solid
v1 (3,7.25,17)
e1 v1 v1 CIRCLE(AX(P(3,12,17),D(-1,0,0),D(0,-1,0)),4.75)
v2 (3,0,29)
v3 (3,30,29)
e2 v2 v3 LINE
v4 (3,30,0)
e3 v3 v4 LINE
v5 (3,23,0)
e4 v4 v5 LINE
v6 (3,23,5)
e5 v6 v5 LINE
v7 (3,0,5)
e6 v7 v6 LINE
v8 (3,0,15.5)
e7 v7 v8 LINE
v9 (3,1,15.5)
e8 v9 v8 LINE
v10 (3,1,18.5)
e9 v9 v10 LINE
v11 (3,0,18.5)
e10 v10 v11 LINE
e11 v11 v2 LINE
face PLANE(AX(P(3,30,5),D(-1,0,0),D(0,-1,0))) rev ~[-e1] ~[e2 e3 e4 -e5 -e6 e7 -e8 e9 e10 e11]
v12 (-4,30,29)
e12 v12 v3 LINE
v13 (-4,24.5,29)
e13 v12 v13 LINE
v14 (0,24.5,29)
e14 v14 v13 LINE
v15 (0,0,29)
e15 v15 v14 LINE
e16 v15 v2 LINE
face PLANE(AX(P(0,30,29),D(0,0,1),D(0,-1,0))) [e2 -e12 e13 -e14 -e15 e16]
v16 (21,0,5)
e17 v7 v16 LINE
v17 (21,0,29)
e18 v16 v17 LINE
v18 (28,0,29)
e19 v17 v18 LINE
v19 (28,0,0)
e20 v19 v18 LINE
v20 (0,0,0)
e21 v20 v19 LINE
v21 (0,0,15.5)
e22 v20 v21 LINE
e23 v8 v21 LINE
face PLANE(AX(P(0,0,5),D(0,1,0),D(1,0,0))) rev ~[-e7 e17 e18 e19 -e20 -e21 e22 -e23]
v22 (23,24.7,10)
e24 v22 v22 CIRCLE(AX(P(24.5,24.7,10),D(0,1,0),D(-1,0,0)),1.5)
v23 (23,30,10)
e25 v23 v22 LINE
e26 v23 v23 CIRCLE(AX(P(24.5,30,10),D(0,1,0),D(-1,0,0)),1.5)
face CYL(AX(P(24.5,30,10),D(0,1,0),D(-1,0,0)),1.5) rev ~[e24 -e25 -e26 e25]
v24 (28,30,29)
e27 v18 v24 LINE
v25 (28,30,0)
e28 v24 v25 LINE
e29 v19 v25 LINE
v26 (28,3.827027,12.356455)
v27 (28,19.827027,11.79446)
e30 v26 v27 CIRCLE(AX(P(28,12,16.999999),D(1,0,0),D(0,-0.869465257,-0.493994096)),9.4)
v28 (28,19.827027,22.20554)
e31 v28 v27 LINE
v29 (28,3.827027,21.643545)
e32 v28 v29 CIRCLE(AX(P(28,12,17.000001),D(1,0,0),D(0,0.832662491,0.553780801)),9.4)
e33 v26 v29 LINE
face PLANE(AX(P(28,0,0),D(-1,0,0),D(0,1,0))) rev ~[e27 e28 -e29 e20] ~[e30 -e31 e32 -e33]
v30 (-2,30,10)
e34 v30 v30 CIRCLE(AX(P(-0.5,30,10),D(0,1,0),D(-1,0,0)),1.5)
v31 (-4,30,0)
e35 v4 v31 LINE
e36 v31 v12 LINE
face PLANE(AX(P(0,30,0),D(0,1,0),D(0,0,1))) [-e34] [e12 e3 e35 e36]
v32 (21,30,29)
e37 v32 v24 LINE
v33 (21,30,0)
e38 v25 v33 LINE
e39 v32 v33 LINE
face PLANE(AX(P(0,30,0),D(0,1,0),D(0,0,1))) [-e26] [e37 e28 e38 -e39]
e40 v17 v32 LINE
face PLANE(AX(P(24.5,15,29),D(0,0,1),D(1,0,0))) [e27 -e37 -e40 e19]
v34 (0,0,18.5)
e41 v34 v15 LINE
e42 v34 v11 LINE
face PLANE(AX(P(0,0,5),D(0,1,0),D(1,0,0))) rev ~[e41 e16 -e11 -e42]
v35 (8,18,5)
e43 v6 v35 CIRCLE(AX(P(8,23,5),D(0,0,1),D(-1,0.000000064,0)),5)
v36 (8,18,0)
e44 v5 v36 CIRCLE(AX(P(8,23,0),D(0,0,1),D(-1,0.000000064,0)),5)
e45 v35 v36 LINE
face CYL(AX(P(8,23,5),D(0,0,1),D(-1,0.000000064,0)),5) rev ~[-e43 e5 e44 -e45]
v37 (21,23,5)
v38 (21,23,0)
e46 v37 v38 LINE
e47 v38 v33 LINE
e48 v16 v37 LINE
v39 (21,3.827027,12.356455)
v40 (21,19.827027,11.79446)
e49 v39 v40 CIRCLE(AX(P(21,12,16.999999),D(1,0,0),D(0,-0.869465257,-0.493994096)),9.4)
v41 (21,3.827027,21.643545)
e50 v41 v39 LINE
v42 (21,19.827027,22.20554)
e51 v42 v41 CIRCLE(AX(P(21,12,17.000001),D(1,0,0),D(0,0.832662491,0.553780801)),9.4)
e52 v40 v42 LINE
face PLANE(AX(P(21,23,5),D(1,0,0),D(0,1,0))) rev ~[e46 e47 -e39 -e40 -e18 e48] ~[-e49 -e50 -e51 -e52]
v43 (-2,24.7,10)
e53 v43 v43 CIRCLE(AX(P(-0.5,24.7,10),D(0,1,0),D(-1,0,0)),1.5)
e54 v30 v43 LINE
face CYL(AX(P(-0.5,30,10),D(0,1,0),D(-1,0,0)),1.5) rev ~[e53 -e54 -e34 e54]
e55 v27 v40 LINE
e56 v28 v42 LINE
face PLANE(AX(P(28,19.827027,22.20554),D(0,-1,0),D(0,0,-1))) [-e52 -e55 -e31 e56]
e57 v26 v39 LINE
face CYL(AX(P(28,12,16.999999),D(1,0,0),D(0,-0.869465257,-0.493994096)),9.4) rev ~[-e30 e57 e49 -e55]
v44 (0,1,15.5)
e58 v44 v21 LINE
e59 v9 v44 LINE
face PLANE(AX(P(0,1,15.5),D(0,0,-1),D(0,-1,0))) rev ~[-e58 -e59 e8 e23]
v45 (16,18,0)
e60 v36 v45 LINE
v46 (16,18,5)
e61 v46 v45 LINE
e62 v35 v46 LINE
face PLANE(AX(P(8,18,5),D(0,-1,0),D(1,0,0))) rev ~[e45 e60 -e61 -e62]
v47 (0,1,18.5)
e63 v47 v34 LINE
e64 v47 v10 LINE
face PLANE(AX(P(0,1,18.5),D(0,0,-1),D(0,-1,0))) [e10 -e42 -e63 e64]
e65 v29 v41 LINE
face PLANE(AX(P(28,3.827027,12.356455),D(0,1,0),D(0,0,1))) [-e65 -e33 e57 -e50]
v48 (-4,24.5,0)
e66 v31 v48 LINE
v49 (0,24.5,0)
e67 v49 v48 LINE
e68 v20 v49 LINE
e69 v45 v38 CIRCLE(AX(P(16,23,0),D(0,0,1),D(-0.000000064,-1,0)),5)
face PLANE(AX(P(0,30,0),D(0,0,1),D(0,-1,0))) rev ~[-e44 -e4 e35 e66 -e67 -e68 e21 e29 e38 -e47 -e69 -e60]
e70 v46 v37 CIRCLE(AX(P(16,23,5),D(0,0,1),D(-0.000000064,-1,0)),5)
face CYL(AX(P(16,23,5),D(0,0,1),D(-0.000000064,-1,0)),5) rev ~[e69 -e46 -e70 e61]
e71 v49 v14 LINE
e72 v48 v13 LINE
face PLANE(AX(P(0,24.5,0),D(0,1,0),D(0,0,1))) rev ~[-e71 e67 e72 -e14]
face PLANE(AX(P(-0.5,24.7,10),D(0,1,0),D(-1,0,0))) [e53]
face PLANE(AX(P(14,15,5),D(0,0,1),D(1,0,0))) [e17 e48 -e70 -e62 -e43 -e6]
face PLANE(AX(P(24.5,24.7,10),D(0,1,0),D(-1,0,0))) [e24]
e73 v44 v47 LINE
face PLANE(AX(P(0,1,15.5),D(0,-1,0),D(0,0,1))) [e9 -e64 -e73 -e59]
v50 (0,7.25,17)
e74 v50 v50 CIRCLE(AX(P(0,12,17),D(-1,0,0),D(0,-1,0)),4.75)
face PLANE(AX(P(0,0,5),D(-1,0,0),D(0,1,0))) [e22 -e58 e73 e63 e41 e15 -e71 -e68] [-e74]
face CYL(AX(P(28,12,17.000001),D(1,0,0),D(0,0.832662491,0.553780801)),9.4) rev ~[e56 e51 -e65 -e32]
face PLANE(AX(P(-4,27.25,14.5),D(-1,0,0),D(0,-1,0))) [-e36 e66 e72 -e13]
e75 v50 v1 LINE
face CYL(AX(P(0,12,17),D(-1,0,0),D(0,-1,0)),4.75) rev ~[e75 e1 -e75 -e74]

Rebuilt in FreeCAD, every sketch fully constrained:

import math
import FreeCAD as App
import Part
import Sketcher

doc = App.newDocument("Part")
body = doc.addObject("PartDesign::Body", "Body")

# Sketch on XY plane
sketch1 = body.newObject("Sketcher::SketchObject", "Sketch")
sketch1.AttachmentSupport = (doc.getObject("XY_Plane"), [""])
sketch1.MapMode = "FlatFace"
sketch1.addGeometry(Part.LineSegment(App.Vector(0, 30, 0), App.Vector(0, 0, 0)), False)
sketch1.addGeometry(Part.LineSegment(App.Vector(0, 0, 0), App.Vector(28, 0, 0)), False)
sketch1.addGeometry(Part.LineSegment(App.Vector(28, 0, 0), App.Vector(28, 30, 0)), False)
sketch1.addGeometry(Part.LineSegment(App.Vector(28, 30, 0), App.Vector(0, 30, 0)), False)
sketch1.addConstraint(Sketcher.Constraint("Coincident", 0, 2, 1, 1))
sketch1.addConstraint(Sketcher.Constraint("Coincident", 1, 2, 2, 1))
sketch1.addConstraint(Sketcher.Constraint("Coincident", 2, 2, 3, 1))
sketch1.addConstraint(Sketcher.Constraint("Coincident", 3, 2, 0, 1))
sketch1.addConstraint(Sketcher.Constraint("Vertical", 0))
sketch1.addConstraint(Sketcher.Constraint("Horizontal", 1))
sketch1.addConstraint(Sketcher.Constraint("Vertical", 2))
sketch1.addConstraint(Sketcher.Constraint("Horizontal", 3))
sketch1.addConstraint(Sketcher.Constraint("Coincident", 0, 2, -1, 1))
sketch1.addConstraint(Sketcher.Constraint("DistanceX", 1, 1, 1, 2, 28.0))
sketch1.addConstraint(Sketcher.Constraint("DistanceY", 0, 2, 0, 1, 30.0))
pad1 = body.newObject("PartDesign::Pad", "Pad")
pad1.Profile = sketch1
pad1.Length = 5

# Sketch on XY plane
sketch2 = body.newObject("Sketcher::SketchObject", "Sketch001")
sketch2.AttachmentSupport = (doc.getObject("XY_Plane"), [""])
sketch2.MapMode = "FlatFace"
sketch2.AttachmentOffset = App.Placement(App.Vector(0, 0, 5), App.Rotation())
sketch2.addGeometry(Part.LineSegment(App.Vector(0, 30, 0), App.Vector(0, 0, 0)), False)
sketch2.addGeometry(Part.LineSegment(App.Vector(0, 0, 0), App.Vector(3, 0, 0)), False)
sketch2.addGeometry(Part.LineSegment(App.Vector(3, 0, 0), App.Vector(3, 30, 0)), False)
sketch2.addGeometry(Part.LineSegment(App.Vector(3, 30, 0), App.Vector(0, 30, 0)), False)
sketch2.addGeometry(Part.LineSegment(App.Vector(21, 30, 0), App.Vector(21, 0, 0)), False)
sketch2.addGeometry(Part.LineSegment(App.Vector(21, 0, 0), App.Vector(28, 0, 0)), False)
sketch2.addGeometry(Part.LineSegment(App.Vector(28, 0, 0), App.Vector(28, 30, 0)), False)
sketch2.addGeometry(Part.LineSegment(App.Vector(28, 30, 0), App.Vector(21, 30, 0)), False)
sketch2.addConstraint(Sketcher.Constraint("Coincident", 0, 2, 1, 1))
sketch2.addConstraint(Sketcher.Constraint("Coincident", 1, 2, 2, 1))
sketch2.addConstraint(Sketcher.Constraint("Coincident", 2, 2, 3, 1))
sketch2.addConstraint(Sketcher.Constraint("Coincident", 3, 2, 0, 1))
sketch2.addConstraint(Sketcher.Constraint("Coincident", 4, 2, 5, 1))
sketch2.addConstraint(Sketcher.Constraint("Coincident", 5, 2, 6, 1))
sketch2.addConstraint(Sketcher.Constraint("Coincident", 6, 2, 7, 1))
sketch2.addConstraint(Sketcher.Constraint("Coincident", 7, 2, 4, 1))
sketch2.addConstraint(Sketcher.Constraint("Vertical", 0))
sketch2.addConstraint(Sketcher.Constraint("Horizontal", 1))
sketch2.addConstraint(Sketcher.Constraint("Vertical", 2))
sketch2.addConstraint(Sketcher.Constraint("Horizontal", 3))
sketch2.addConstraint(Sketcher.Constraint("Vertical", 4))
sketch2.addConstraint(Sketcher.Constraint("Horizontal", 5))
sketch2.addConstraint(Sketcher.Constraint("Vertical", 6))
sketch2.addConstraint(Sketcher.Constraint("Horizontal", 7))
sketch2.addConstraint(Sketcher.Constraint("Coincident", 0, 2, -1, 1))
sketch2.addConstraint(Sketcher.Constraint("PointOnObject", 4, 2, -1))
sketch2.addConstraint(Sketcher.Constraint("Horizontal", 3, 2, 6, 2))
sketch2.addConstraint(Sketcher.Constraint("DistanceX", 1, 1, 1, 2, 3.0))
sketch2.addConstraint(Sketcher.Constraint("DistanceX", 5, 1, 5, 2, 7.0))
sketch2.addConstraint(Sketcher.Constraint("DistanceY", 0, 2, 0, 1, 30.0))
sketch2.addConstraint(Sketcher.Constraint("DistanceX", -1, 1, 4, 2, 21.0))
pad2 = body.newObject("PartDesign::Pad", "Pad001")
pad2.Profile = sketch2
pad2.Length = 24

# Sketch on YZ plane
sketch3 = body.newObject("Sketcher::SketchObject", "Sketch002")
sketch3.AttachmentSupport = (doc.getObject("YZ_Plane"), [""])
sketch3.MapMode = "FlatFace"
sketch3.addGeometry(Part.Circle(App.Vector(12, 17, 0), App.Vector(0, 0, 1), 4.75), False)
sketch3.addGeometry(Part.LineSegment(App.Vector(1, 18.5, 0), App.Vector(1, 15.5, 0)), False)
sketch3.addGeometry(Part.LineSegment(App.Vector(1, 15.5, 0), App.Vector(0, 15.5, 0)), False)
sketch3.addGeometry(Part.LineSegment(App.Vector(0, 15.5, 0), App.Vector(0, 18.5, 0)), False)
sketch3.addGeometry(Part.LineSegment(App.Vector(0, 18.5, 0), App.Vector(1, 18.5, 0)), False)
sketch3.addConstraint(Sketcher.Constraint("Coincident", 1, 2, 2, 1))
sketch3.addConstraint(Sketcher.Constraint("Coincident", 2, 2, 3, 1))
sketch3.addConstraint(Sketcher.Constraint("Coincident", 3, 2, 4, 1))
sketch3.addConstraint(Sketcher.Constraint("Coincident", 4, 2, 1, 1))
sketch3.addConstraint(Sketcher.Constraint("Vertical", 1))
sketch3.addConstraint(Sketcher.Constraint("Horizontal", 2))
sketch3.addConstraint(Sketcher.Constraint("Vertical", 3))
sketch3.addConstraint(Sketcher.Constraint("Horizontal", 4))
sketch3.addConstraint(Sketcher.Constraint("PointOnObject", 2, 2, -2))
sketch3.addConstraint(Sketcher.Constraint("Diameter", 0, 9.5))
sketch3.addConstraint(Sketcher.Constraint("DistanceX", 2, 2, 2, 1, 1.0))
sketch3.addConstraint(Sketcher.Constraint("DistanceY", 1, 2, 1, 1, 3.0))
sketch3.addConstraint(Sketcher.Constraint("DistanceX", -1, 1, 0, 3, 12.0))
sketch3.addConstraint(Sketcher.Constraint("DistanceY", -1, 1, 0, 3, 17.0))
sketch3.addConstraint(Sketcher.Constraint("DistanceY", -1, 1, 1, 2, 15.5))
pocket1 = body.newObject("PartDesign::Pocket", "Pocket")
pocket1.Profile = sketch3
pocket1.Length = 8
pocket1.Midplane = True

# Sketch on YZ plane
sketch4 = body.newObject("Sketcher::SketchObject", "Sketch003")
sketch4.AttachmentSupport = (doc.getObject("YZ_Plane"), [""])
sketch4.MapMode = "FlatFace"
sketch4.AttachmentOffset = App.Placement(App.Vector(0, 0, 28), App.Rotation())
sketch4.addGeometry(Part.LineSegment(App.Vector(19.827027, 11.79446, 0), App.Vector(19.827027, 22.20554, 0)), False)
sketch4.addGeometry(Part.ArcOfCircle(Part.Circle(App.Vector(12, 17.000001, 0), App.Vector(0, 0, 1), 9.4), math.radians(33.62678), math.radians(150.396558)), False)
sketch4.addGeometry(Part.LineSegment(App.Vector(3.827027, 21.643545, 0), App.Vector(3.827027, 12.356455, 0)), False)
sketch4.addGeometry(Part.ArcOfCircle(Part.Circle(App.Vector(12, 16.999999, 0), App.Vector(0, 0, 1), 9.4), math.radians(-150.396558), math.radians(-33.62678)), False)
sketch4.addConstraint(Sketcher.Constraint("Coincident", 0, 2, 1, 1))
sketch4.addConstraint(Sketcher.Constraint("Coincident", 1, 2, 2, 1))
sketch4.addConstraint(Sketcher.Constraint("Coincident", 2, 2, 3, 1))
sketch4.addConstraint(Sketcher.Constraint("Coincident", 3, 2, 0, 1))
sketch4.addConstraint(Sketcher.Constraint("Vertical", 0))
sketch4.addConstraint(Sketcher.Constraint("Vertical", 2))
sketch4.addConstraint(Sketcher.Constraint("Coincident", 3, 3, 1, 3))
sketch4.addConstraint(Sketcher.Constraint("Equal", 1, 3))
sketch4.addConstraint(Sketcher.Constraint("Radius", 1, 9.4))
sketch4.addConstraint(Sketcher.Constraint("DistanceX", -1, 1, 1, 3, 12.0))
sketch4.addConstraint(Sketcher.Constraint("DistanceY", -1, 1, 1, 3, 17.000001))
sketch4.addConstraint(Sketcher.Constraint("DistanceX", 1, 2, 0, 2, 16.0))
sketch4.addConstraint(Sketcher.Constraint("DistanceY", 0, 1, 0, 2, 10.41108))
pocket2 = body.newObject("PartDesign::Pocket", "Pocket001")
pocket2.Profile = sketch4
pocket2.Length = 10

# Sketch on YZ plane
sketch5 = body.newObject("Sketcher::SketchObject", "Sketch004")
sketch5.AttachmentSupport = (doc.getObject("YZ_Plane"), [""])
sketch5.MapMode = "FlatFace"
sketch5.addGeometry(Part.LineSegment(App.Vector(30, 29, 0), App.Vector(30, 0, 0)), False)
sketch5.addGeometry(Part.LineSegment(App.Vector(30, 0, 0), App.Vector(24.5, 0, 0)), False)
sketch5.addGeometry(Part.LineSegment(App.Vector(24.5, 0, 0), App.Vector(24.5, 29, 0)), False)
sketch5.addGeometry(Part.LineSegment(App.Vector(24.5, 29, 0), App.Vector(30, 29, 0)), False)
sketch5.addConstraint(Sketcher.Constraint("Coincident", 0, 2, 1, 1))
sketch5.addConstraint(Sketcher.Constraint("Coincident", 1, 2, 2, 1))
sketch5.addConstraint(Sketcher.Constraint("Coincident", 2, 2, 3, 1))
sketch5.addConstraint(Sketcher.Constraint("Coincident", 3, 2, 0, 1))
sketch5.addConstraint(Sketcher.Constraint("Vertical", 0))
sketch5.addConstraint(Sketcher.Constraint("Horizontal", 1))
sketch5.addConstraint(Sketcher.Constraint("Vertical", 2))
sketch5.addConstraint(Sketcher.Constraint("Horizontal", 3))
sketch5.addConstraint(Sketcher.Constraint("PointOnObject", 0, 2, -1))
sketch5.addConstraint(Sketcher.Constraint("DistanceY", 0, 2, 0, 1, 29.0))
sketch5.addConstraint(Sketcher.Constraint("DistanceX", 1, 2, 1, 1, 5.5))
sketch5.addConstraint(Sketcher.Constraint("DistanceX", -1, 1, 0, 2, 30.0))
pad3 = body.newObject("PartDesign::Pad", "Pad002")
pad3.Profile = sketch5
pad3.Length = 4
pad3.Reversed = True

# Sketch on XZ plane
sketch6 = body.newObject("Sketcher::SketchObject", "Sketch005")
sketch6.AttachmentSupport = (doc.getObject("XZ_Plane"), [""])
sketch6.MapMode = "FlatFace"
sketch6.AttachmentOffset = App.Placement(App.Vector(0, 0, -30), App.Rotation())
sketch6.addGeometry(Part.Circle(App.Vector(24.5, 10, 0), App.Vector(0, 0, 1), 1.5), False)
sketch6.addGeometry(Part.Circle(App.Vector(-0.5, 10, 0), App.Vector(0, 0, 1), 1.5), False)
sketch6.addConstraint(Sketcher.Constraint("Equal", 0, 1))
sketch6.addConstraint(Sketcher.Constraint("Horizontal", 0, 3, 1, 3))
sketch6.addConstraint(Sketcher.Constraint("Diameter", 0, 3.0))
sketch6.addConstraint(Sketcher.Constraint("DistanceY", -1, 1, 0, 3, 10.0))
sketch6.addConstraint(Sketcher.Constraint("DistanceX", 1, 3, 0, 3, 25.0))
sketch6.addConstraint(Sketcher.Constraint("DistanceX", -1, 1, 0, 3, 24.5))
pocket3 = body.newObject("PartDesign::Pocket", "Pocket002")
pocket3.Profile = sketch6
pocket3.Length = 5.3
pocket3.Reversed = True

# Sketch on XY plane
sketch7 = body.newObject("Sketcher::SketchObject", "Sketch006")
sketch7.AttachmentSupport = (doc.getObject("XY_Plane"), [""])
sketch7.MapMode = "FlatFace"
sketch7.AttachmentOffset = App.Placement(App.Vector(0, 0, 5), App.Rotation())
sketch7.addGeometry(Part.LineSegment(App.Vector(21, 30, 0), App.Vector(3, 30, 0)), False)
sketch7.addGeometry(Part.LineSegment(App.Vector(3, 30, 0), App.Vector(3, 23, 0)), False)
sketch7.addGeometry(Part.ArcOfCircle(Part.Circle(App.Vector(8, 23, 0), App.Vector(0, 0, 1), 5), math.radians(179.999996), math.radians(270.000004)), False)
sketch7.addGeometry(Part.LineSegment(App.Vector(8, 18, 0), App.Vector(16, 18, 0)), False)
sketch7.addGeometry(Part.ArcOfCircle(Part.Circle(App.Vector(16, 23, 0), App.Vector(0, 0, 1), 5), math.radians(-90.000004), math.radians(0.000004)), False)
sketch7.addGeometry(Part.LineSegment(App.Vector(21, 23, 0), App.Vector(21, 30, 0)), False)
sketch7.addConstraint(Sketcher.Constraint("Coincident", 0, 2, 1, 1))
sketch7.addConstraint(Sketcher.Constraint("Tangent", 1, 2, 2, 1))
sketch7.addConstraint(Sketcher.Constraint("Tangent", 2, 2, 3, 1))
sketch7.addConstraint(Sketcher.Constraint("Tangent", 3, 2, 4, 1))
sketch7.addConstraint(Sketcher.Constraint("Tangent", 4, 2, 5, 1))
sketch7.addConstraint(Sketcher.Constraint("Coincident", 5, 2, 0, 1))
sketch7.addConstraint(Sketcher.Constraint("Horizontal", 0))
sketch7.addConstraint(Sketcher.Constraint("Vertical", 1))
sketch7.addConstraint(Sketcher.Constraint("Horizontal", 3))
sketch7.addConstraint(Sketcher.Constraint("Vertical", 5))
sketch7.addConstraint(Sketcher.Constraint("Equal", 2, 4))
sketch7.addConstraint(Sketcher.Constraint("Radius", 2, 5.0))
sketch7.addConstraint(Sketcher.Constraint("DistanceX", 0, 2, 0, 1, 18.0))
sketch7.addConstraint(Sketcher.Constraint("DistanceY", 1, 2, 1, 1, 7.0))
sketch7.addConstraint(Sketcher.Constraint("DistanceX", -1, 1, 2, 3, 8.0))
sketch7.addConstraint(Sketcher.Constraint("DistanceY", -1, 1, 2, 3, 23.0))
pocket4 = body.newObject("PartDesign::Pocket", "Pocket003")
pocket4.Profile = sketch7
pocket4.Length = 5

doc.recompute()
